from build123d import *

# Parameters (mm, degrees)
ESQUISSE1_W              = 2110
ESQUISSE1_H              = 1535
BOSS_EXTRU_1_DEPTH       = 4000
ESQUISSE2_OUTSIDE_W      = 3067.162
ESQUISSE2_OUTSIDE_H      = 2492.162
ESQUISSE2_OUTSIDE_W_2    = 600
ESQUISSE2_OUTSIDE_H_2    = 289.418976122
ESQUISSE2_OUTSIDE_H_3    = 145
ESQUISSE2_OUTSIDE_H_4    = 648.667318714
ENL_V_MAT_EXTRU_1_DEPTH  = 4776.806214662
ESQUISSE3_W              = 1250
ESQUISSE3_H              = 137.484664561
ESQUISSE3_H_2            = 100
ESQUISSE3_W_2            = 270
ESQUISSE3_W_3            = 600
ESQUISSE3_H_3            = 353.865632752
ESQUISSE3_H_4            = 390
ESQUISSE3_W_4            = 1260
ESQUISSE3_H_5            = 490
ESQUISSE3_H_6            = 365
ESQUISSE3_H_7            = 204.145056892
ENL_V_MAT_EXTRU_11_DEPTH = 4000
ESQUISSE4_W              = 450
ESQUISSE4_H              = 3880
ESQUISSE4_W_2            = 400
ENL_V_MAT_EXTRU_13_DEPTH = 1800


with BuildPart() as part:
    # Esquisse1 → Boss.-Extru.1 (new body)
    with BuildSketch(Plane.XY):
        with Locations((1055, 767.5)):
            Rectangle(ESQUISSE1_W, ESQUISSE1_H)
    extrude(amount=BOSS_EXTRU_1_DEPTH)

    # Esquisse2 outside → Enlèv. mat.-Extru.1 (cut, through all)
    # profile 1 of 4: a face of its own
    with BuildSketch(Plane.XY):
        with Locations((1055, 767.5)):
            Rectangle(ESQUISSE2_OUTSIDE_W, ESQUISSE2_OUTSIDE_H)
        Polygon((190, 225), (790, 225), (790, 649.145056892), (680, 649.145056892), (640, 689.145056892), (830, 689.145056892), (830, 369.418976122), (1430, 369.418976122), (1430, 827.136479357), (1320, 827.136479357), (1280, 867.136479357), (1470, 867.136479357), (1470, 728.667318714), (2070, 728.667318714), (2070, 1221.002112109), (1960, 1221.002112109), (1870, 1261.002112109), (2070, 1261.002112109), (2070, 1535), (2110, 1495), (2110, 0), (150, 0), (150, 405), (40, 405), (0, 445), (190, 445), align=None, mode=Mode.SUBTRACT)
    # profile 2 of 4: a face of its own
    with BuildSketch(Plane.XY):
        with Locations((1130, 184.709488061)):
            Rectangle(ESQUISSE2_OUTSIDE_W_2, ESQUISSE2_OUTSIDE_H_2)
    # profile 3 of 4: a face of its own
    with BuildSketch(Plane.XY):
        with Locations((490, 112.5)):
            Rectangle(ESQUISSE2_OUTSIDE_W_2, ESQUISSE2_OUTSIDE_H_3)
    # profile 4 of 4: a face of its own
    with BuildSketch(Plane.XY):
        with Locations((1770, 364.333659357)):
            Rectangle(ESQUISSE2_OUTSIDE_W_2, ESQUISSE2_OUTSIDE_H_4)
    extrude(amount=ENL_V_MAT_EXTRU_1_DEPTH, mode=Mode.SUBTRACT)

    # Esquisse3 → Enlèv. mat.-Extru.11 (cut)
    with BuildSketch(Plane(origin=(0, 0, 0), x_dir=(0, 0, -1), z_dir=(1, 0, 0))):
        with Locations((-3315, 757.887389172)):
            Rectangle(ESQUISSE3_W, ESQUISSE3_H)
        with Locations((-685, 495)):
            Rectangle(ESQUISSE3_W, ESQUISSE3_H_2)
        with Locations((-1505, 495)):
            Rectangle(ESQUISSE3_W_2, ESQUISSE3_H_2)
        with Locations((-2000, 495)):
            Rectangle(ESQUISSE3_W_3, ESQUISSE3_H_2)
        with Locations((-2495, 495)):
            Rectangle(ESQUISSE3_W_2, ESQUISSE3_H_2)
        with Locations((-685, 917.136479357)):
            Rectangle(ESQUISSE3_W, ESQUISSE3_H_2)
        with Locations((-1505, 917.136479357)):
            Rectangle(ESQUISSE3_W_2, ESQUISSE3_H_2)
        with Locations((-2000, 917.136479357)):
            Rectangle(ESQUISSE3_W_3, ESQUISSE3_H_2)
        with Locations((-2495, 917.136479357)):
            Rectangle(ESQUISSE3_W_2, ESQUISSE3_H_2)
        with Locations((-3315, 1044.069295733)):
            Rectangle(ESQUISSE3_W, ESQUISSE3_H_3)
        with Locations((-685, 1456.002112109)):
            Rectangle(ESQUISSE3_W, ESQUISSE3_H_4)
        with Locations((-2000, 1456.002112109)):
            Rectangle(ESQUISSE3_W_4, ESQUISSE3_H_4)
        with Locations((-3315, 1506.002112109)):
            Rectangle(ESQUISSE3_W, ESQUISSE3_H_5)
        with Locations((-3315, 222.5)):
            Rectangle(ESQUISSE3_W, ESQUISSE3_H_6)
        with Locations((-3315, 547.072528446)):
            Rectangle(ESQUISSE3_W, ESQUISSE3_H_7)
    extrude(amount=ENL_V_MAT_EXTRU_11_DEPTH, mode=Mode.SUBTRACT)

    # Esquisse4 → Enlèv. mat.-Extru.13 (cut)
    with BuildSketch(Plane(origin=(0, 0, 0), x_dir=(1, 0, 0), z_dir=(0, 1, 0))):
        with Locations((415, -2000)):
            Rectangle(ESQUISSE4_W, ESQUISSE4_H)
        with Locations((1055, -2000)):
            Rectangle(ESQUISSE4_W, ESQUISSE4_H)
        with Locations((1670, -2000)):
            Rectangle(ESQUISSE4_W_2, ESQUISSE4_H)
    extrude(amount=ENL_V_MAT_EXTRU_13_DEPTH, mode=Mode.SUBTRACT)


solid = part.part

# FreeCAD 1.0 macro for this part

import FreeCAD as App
import Part
import Sketcher

V = App.Vector
Q = App.Units.Quantity

doc = App.newDocument("Part")
params = doc.addObject("Spreadsheet::Sheet", "Params")
for row, (alias, value) in enumerate([
    ("sketch1_width", "2110 mm"),
    ("sketch1_height", "1535 mm"),
    ("pad1_length", "4000 mm"),
    ("sketch2_width", "600 mm"),
    ("sketch2_width2", "110 mm"),
    ("sketch2_width3", "190 mm"),
    ("sketch2_width4", "200 mm"),
    ("sketch2_width5", "1960 mm"),
    ("pocket1_length", "4776.806215 mm"),
    ("sketch3_width", "100 mm"),
    ("sketch3_width2", "390 mm"),
    ("sketch3_width3", "490 mm"),
    ("sketch3_width4", "365 mm"),
    ("sketch3_height", "1250 mm"),
    ("pocket2_length", "4000 mm"),
    ("sketch4_width", "450 mm"),
    ("sketch4_width2", "400 mm"),
    ("sketch4_height", "3880 mm"),
    ("pocket3_length", "1800 mm"),
], start=1):
    params.set(f"A{row}", alias)
    params.set(f"B{row}", "=" + value)
    params.setAlias(f"B{row}", alias)

body = doc.addObject("PartDesign::Body", "Body")

# Sketch on XY plane
sketch1 = body.newObject("Sketcher::SketchObject", "Sketch")
sketch1.AttachmentSupport = (doc.getObject("XY_Plane"), [""])
sketch1.MapMode = "FlatFace"
sketch1.addGeometry([
    Part.LineSegment(V(0, 1535, 0), V(0, 0, 0)),
    Part.LineSegment(V(0, 0, 0), V(2110, 0, 0)),
    Part.LineSegment(V(2110, 0, 0), V(2110, 1535, 0)),
    Part.LineSegment(V(2110, 1535, 0), V(0, 1535, 0)),
], False)
sketch1.addConstraint([
    Sketcher.Constraint("Coincident", 0, 2, 1, 1),
    Sketcher.Constraint("Coincident", 1, 2, 2, 1),
    Sketcher.Constraint("Coincident", 2, 2, 3, 1),
    Sketcher.Constraint("Coincident", 3, 2, 0, 1),
    Sketcher.Constraint("Vertical", 0),
    Sketcher.Constraint("Horizontal", 1),
    Sketcher.Constraint("Vertical", 2),
    Sketcher.Constraint("Horizontal", 3),
    Sketcher.Constraint("Coincident", 0, 2, -1, 1),
    Sketcher.Constraint("DistanceX", 1, 1, 1, 2, 2110.0),
    Sketcher.Constraint("DistanceY", 0, 2, 0, 1, 1535.0),
])
sketch1.setExpression("Constraints[9]", "Params.sketch1_width")
sketch1.setExpression("Constraints[10]", "Params.sketch1_height")
pad1 = body.newObject("PartDesign::Pad", "Pad")
pad1.Profile = sketch1
pad1.setExpression("Length", "Params.pad1_length")

# Sketch on XY plane
sketch2 = body.newObject("Sketcher::SketchObject", "Sketch001")
sketch2.AttachmentSupport = (doc.getObject("XY_Plane"), [""])
sketch2.MapMode = "FlatFace"
sketch2.addGeometry([
    Part.LineSegment(V(-479, 2014, 0), V(-479, -479, 0)),  # 0
    Part.LineSegment(V(-479, -479, 0), V(2589, -479, 0)),  # 1
    Part.LineSegment(V(2589, -479, 0), V(2589, 2014, 0)),  # 2
    Part.LineSegment(V(2589, 2014, 0), V(-479, 2014, 0)),  # 3
    Part.LineSegment(V(190, 445, 0), V(190, 225, 0)),  # 4
    Part.LineSegment(V(190, 225, 0), V(790, 225, 0)),  # 5
    Part.LineSegment(V(790, 225, 0), V(790, 649, 0)),  # 6
    Part.LineSegment(V(790, 649, 0), V(680, 649, 0)),  # 7
    Part.LineSegment(V(680, 649, 0), V(640, 689, 0)),  # 8
    Part.LineSegment(V(640, 689, 0), V(830, 689, 0)),  # 9
    Part.LineSegment(V(830, 689, 0), V(830, 369, 0)),  # 10
    Part.LineSegment(V(830, 369, 0), V(1430, 369, 0)),  # 11
    Part.LineSegment(V(1430, 369, 0), V(1430, 827, 0)),  # 12
    Part.LineSegment(V(1430, 827, 0), V(1320, 827, 0)),  # 13
    Part.LineSegment(V(1320, 827, 0), V(1280, 867, 0)),  # 14
    Part.LineSegment(V(1280, 867, 0), V(1470, 867, 0)),  # 15
    Part.LineSegment(V(1470, 867, 0), V(1470, 729, 0)),  # 16
    Part.LineSegment(V(1470, 729, 0), V(2070, 729, 0)),  # 17
    Part.LineSegment(V(2070, 729, 0), V(2070, 1221, 0)),  # 18
    Part.LineSegment(V(2070, 1221, 0), V(1960, 1221, 0)),  # 19
    Part.LineSegment(V(1960, 1221, 0), V(1870, 1261, 0)),  # 20
    Part.LineSegment(V(1870, 1261, 0), V(2070, 1261, 0)),  # 21
    Part.LineSegment(V(2070, 1261, 0), V(2070, 1535, 0)),  # 22
    Part.LineSegment(V(2070, 1535, 0), V(2110, 1495, 0)),  # 23
    Part.LineSegment(V(2110, 1495, 0), V(2110, 0, 0)),  # 24
    Part.LineSegment(V(2110, 0, 0), V(150, 0, 0)),  # 25
    Part.LineSegment(V(150, 0, 0), V(150, 405, 0)),  # 26
    Part.LineSegment(V(150, 405, 0), V(40, 405, 0)),  # 27
    Part.LineSegment(V(40, 405, 0), V(0, 445, 0)),  # 28
    Part.LineSegment(V(0, 445, 0), V(190, 445, 0)),  # 29
    Part.LineSegment(V(830, 329, 0), V(830, 40, 0)),  # 30
    Part.LineSegment(V(830, 40, 0), V(1430, 40, 0)),  # 31
    Part.LineSegment(V(1430, 40, 0), V(1430, 329, 0)),  # 32
    Part.LineSegment(V(1430, 329, 0), V(830, 329, 0)),  # 33
    Part.LineSegment(V(190, 185, 0), V(190, 40, 0)),  # 34
    Part.LineSegment(V(190, 40, 0), V(790, 40, 0)),  # 35
    Part.LineSegment(V(790, 40, 0), V(790, 185, 0)),  # 36
    Part.LineSegment(V(790, 185, 0), V(190, 185, 0)),  # 37
    Part.LineSegment(V(1470, 689, 0), V(1470, 40, 0)),  # 38
    Part.LineSegment(V(1470, 40, 0), V(2070, 40, 0)),  # 39
    Part.LineSegment(V(2070, 40, 0), V(2070, 689, 0)),  # 40
    Part.LineSegment(V(2070, 689, 0), V(1470, 689, 0)),  # 41
], False)
sketch2.addConstraint([
    Sketcher.Constraint("Coincident", 0, 2, 1, 1),
    Sketcher.Constraint("Coincident", 1, 2, 2, 1),
    Sketcher.Constraint("Coincident", 2, 2, 3, 1),
    Sketcher.Constraint("Coincident", 3, 2, 0, 1),
    Sketcher.Constraint("Coincident", 4, 2, 5, 1),
    Sketcher.Constraint("Coincident", 5, 2, 6, 1),
    Sketcher.Constraint("Coincident", 6, 2, 7, 1),
    Sketcher.Constraint("Coincident", 7, 2, 8, 1),
    Sketcher.Constraint("Coincident", 8, 2, 9, 1),
    Sketcher.Constraint("Coincident", 9, 2, 10, 1),
    Sketcher.Constraint("Coincident", 10, 2, 11, 1),
    Sketcher.Constraint("Coincident", 11, 2, 12, 1),
    Sketcher.Constraint("Coincident", 12, 2, 13, 1),
    Sketcher.Constraint("Coincident", 13, 2, 14, 1),
    Sketcher.Constraint("Coincident", 14, 2, 15, 1),
    Sketcher.Constraint("Coincident", 15, 2, 16, 1),
    Sketcher.Constraint("Coincident", 16, 2, 17, 1),
    Sketcher.Constraint("Coincident", 17, 2, 18, 1),
    Sketcher.Constraint("Coincident", 18, 2, 19, 1),
    Sketcher.Constraint("Coincident", 19, 2, 20, 1),
    Sketcher.Constraint("Coincident", 20, 2, 21, 1),
    Sketcher.Constraint("Coincident", 21, 2, 22, 1),
    Sketcher.Constraint("Coincident", 22, 2, 23, 1),
    Sketcher.Constraint("Coincident", 23, 2, 24, 1),
    Sketcher.Constraint("Coincident", 24, 2, 25, 1),
    Sketcher.Constraint("Coincident", 25, 2, 26, 1),
    Sketcher.Constraint("Coincident", 26, 2, 27, 1),
    Sketcher.Constraint("Coincident", 27, 2, 28, 1),
    Sketcher.Constraint("Coincident", 28, 2, 29, 1),
    Sketcher.Constraint("Coincident", 29, 2, 4, 1),
    Sketcher.Constraint("Coincident", 30, 2, 31, 1),
    Sketcher.Constraint("Coincident", 31, 2, 32, 1),
    Sketcher.Constraint("Coincident", 32, 2, 33, 1),
    Sketcher.Constraint("Coincident", 33, 2, 30, 1),
    Sketcher.Constraint("Coincident", 34, 2, 35, 1),
    Sketcher.Constraint("Coincident", 35, 2, 36, 1),
    Sketcher.Constraint("Coincident", 36, 2, 37, 1),
    Sketcher.Constraint("Coincident", 37, 2, 34, 1),
    Sketcher.Constraint("Coincident", 38, 2, 39, 1),
    Sketcher.Constraint("Coincident", 39, 2, 40, 1),
    Sketcher.Constraint("Coincident", 40, 2, 41, 1),
    Sketcher.Constraint("Coincident", 41, 2, 38, 1),
    Sketcher.Constraint("Vertical", 0),
    Sketcher.Constraint("Horizontal", 1),
    Sketcher.Constraint("Vertical", 2),
    Sketcher.Constraint("Horizontal", 3),
    Sketcher.Constraint("Vertical", 4),
    Sketcher.Constraint("Horizontal", 5),
    Sketcher.Constraint("Vertical", 6),
    Sketcher.Constraint("Horizontal", 7),
    Sketcher.Constraint("Horizontal", 9),
    Sketcher.Constraint("Vertical", 10),
    Sketcher.Constraint("Horizontal", 11),
    Sketcher.Constraint("Vertical", 12),
    Sketcher.Constraint("Horizontal", 13),
    Sketcher.Constraint("Horizontal", 15),
    Sketcher.Constraint("Vertical", 16),
    Sketcher.Constraint("Horizontal", 17),
    Sketcher.Constraint("Vertical", 18),
    Sketcher.Constraint("Horizontal", 19),
    Sketcher.Constraint("Horizontal", 21),
    Sketcher.Constraint("Vertical", 22),
    Sketcher.Constraint("Vertical", 24),
    Sketcher.Constraint("Horizontal", 25),
    Sketcher.Constraint("Vertical", 26),
    Sketcher.Constraint("Horizontal", 27),
    Sketcher.Constraint("Horizontal", 29),
    Sketcher.Constraint("Vertical", 30),
    Sketcher.Constraint("Horizontal", 31),
    Sketcher.Constraint("Vertical", 32),
    Sketcher.Constraint("Horizontal", 33),
    Sketcher.Constraint("Vertical", 34),
    Sketcher.Constraint("Horizontal", 35),
    Sketcher.Constraint("Vertical", 36),
    Sketcher.Constraint("Horizontal", 37),
    Sketcher.Constraint("Vertical", 38),
    Sketcher.Constraint("Horizontal", 39),
    Sketcher.Constraint("Vertical", 40),
    Sketcher.Constraint("Horizontal", 41),
    Sketcher.Constraint("PointOnObject", 24, 2, -1),
    Sketcher.Constraint("PointOnObject", 28, 2, -2),
    Sketcher.Constraint("Parallel", 8, 14),
    Sketcher.Constraint("Parallel", 14, 23),
    Sketcher.Constraint("Parallel", 23, 28),
    Sketcher.Constraint("Horizontal", 31, 2, 34, 2),
    Sketcher.Constraint("Horizontal", 35, 2, 38, 2),
    Sketcher.Constraint("Vertical", 18, 2, 21, 2),
    Sketcher.Constraint("Vertical", 10, 2, 30, 2),
    Sketcher.Constraint("Vertical", 12, 2, 31, 2),
    Sketcher.Constraint("Vertical", 29, 2, 34, 2),
    Sketcher.Constraint("Vertical", 6, 2, 35, 2),
    Sketcher.Constraint("Vertical", 16, 2, 38, 2),
    Sketcher.Constraint("Vertical", 22, 2, 39, 2),
    Sketcher.Constraint("Equal", 5, 11),
    Sketcher.Constraint("Equal", 7, 13),
    Sketcher.Constraint("Equal", 9, 15),
    Sketcher.Constraint("Equal", 11, 17),
    Sketcher.Constraint("Equal", 13, 19),
    Sketcher.Constraint("Equal", 19, 27),
    Sketcher.Constraint("Equal", 15, 29),
    Sketcher.Constraint("Equal", 8, 14),
    Sketcher.Constraint("Equal", 14, 23),
    Sketcher.Constraint("Equal", 23, 28),
    Sketcher.Constraint("DistanceX", 5, 1, 5, 2, 600.0),
    Sketcher.Constraint("DistanceX", 7, 2, 7, 1, 110.0),
    Sketcher.Constraint("DistanceX", 9, 1, 9, 2, 190.0),
    Sketcher.Constraint("DistanceX", 21, 1, 21, 2, 200.0),
    Sketcher.Constraint("DistanceX", 25, 2, 25, 1, 1960.0),
    Sketcher.Constraint("DistanceY", 4, 2, 4, 1, 220.0),
    Sketcher.Constraint("DistanceY", 24, 2, 24, 1, 1495.0),
    Sketcher.Constraint("DistanceY", 26, 1, 26, 2, 405.0),
    Sketcher.Constraint("DistanceY", 34, 2, 34, 1, 145.0),
    Sketcher.Constraint("Angle", 8, Q("135 deg")),
    Sketcher.Constraint("DistanceY", -1, 1, 30, 2, 40.0),
    Sketcher.Constraint("DistanceY", 19, 2, 20, 2, 40.0),
    Sketcher.Constraint("DistanceY", 32, 2, 11, 2, 40.0),
    Sketcher.Constraint("DistanceY", 40, 2, 17, 2, 40.0),
    Sketcher.Constraint("DistanceX", 1, 1, 1, 2, 3067.162),
    Sketcher.Constraint("DistanceY", 0, 2, 0, 1, 2492.162),
    Sketcher.Constraint("DistanceX", 0, 2, -1, 1, 478.581),
    Sketcher.Constraint("DistanceY", 0, 2, -1, 1, 478.581),
    Sketcher.Constraint("DistanceY", 10, 2, 10, 1, 319.726081),
    Sketcher.Constraint("DistanceY", 16, 2, 16, 1, 138.469161),
    Sketcher.Constraint("DistanceY", 38, 2, 38, 1, 648.667319),
    Sketcher.Constraint("DistanceY", 6, 1, 6, 2, 424.145057),
    Sketcher.Constraint("DistanceY", 18, 1, 18, 2, 492.334793),
])
sketch2.setExpression("Constraints[103]", "Params.sketch2_width")
sketch2.setExpression("Constraints[104]", "Params.sketch2_width2")
sketch2.setExpression("Constraints[105]", "Params.sketch2_width3")
sketch2.setExpression("Constraints[106]", "Params.sketch2_width4")
sketch2.setExpression("Constraints[107]", "Params.sketch2_width5")
pocket1 = body.newObject("PartDesign::Pocket", "Pocket")
pocket1.Profile = sketch2
pocket1.setExpression("Length", "Params.pocket1_length")
pocket1.Reversed = True

# Sketch on YZ plane
sketch3 = body.newObject("Sketcher::SketchObject", "Sketch002")
sketch3.AttachmentSupport = (doc.getObject("YZ_Plane"), [""])
sketch3.MapMode = "FlatFace"
sketch3.addGeometry([
    Part.LineSegment(V(827, 3940, 0), V(689, 3940, 0)),  # 0
    Part.LineSegment(V(689, 3940, 0), V(689, 2690, 0)),  # 1
    Part.LineSegment(V(689, 2690, 0), V(827, 2690, 0)),  # 2
    Part.LineSegment(V(827, 2690, 0), V(827, 3940, 0)),  # 3
    Part.LineSegment(V(545, 1310, 0), V(445, 1310, 0)),  # 4
    Part.LineSegment(V(445, 1310, 0), V(445, 60, 0)),  # 5
    Part.LineSegment(V(445, 60, 0), V(545, 60, 0)),  # 6
    Part.LineSegment(V(545, 60, 0), V(545, 1310, 0)),  # 7
    Part.LineSegment(V(545, 1640, 0), V(445, 1640, 0)),  # 8
    Part.LineSegment(V(445, 1640, 0), V(445, 1370, 0)),  # 9
    Part.LineSegment(V(445, 1370, 0), V(545, 1370, 0)),  # 10
    Part.LineSegment(V(545, 1370, 0), V(545, 1640, 0)),  # 11
    Part.LineSegment(V(545, 2300, 0), V(445, 2300, 0)),  # 12
    Part.LineSegment(V(445, 2300, 0), V(445, 1700, 0)),  # 13
    Part.LineSegment(V(445, 1700, 0), V(545, 1700, 0)),  # 14
    Part.LineSegment(V(545, 1700, 0), V(545, 2300, 0)),  # 15
    Part.LineSegment(V(545, 2630, 0), V(445, 2630, 0)),  # 16
    Part.LineSegment(V(445, 2630, 0), V(445, 2360, 0)),  # 17
    Part.LineSegment(V(445, 2360, 0), V(545, 2360, 0)),  # 18
    Part.LineSegment(V(545, 2360, 0), V(545, 2630, 0)),  # 19
    Part.LineSegment(V(967, 1310, 0), V(867, 1310, 0)),  # 20
    Part.LineSegment(V(867, 1310, 0), V(867, 60, 0)),  # 21
    Part.LineSegment(V(867, 60, 0), V(967, 60, 0)),  # 22
    Part.LineSegment(V(967, 60, 0), V(967, 1310, 0)),  # 23
    Part.LineSegment(V(967, 1640, 0), V(867, 1640, 0)),  # 24
    Part.LineSegment(V(867, 1640, 0), V(867, 1370, 0)),  # 25
    Part.LineSegment(V(867, 1370, 0), V(967, 1370, 0)),  # 26
    Part.LineSegment(V(967, 1370, 0), V(967, 1640, 0)),  # 27
    Part.LineSegment(V(967, 2300, 0), V(867, 2300, 0)),  # 28
    Part.LineSegment(V(867, 2300, 0), V(867, 1700, 0)),  # 29
    Part.LineSegment(V(867, 1700, 0), V(967, 1700, 0)),  # 30
    Part.LineSegment(V(967, 1700, 0), V(967, 2300, 0)),  # 31
    Part.LineSegment(V(967, 2630, 0), V(867, 2630, 0)),  # 32
    Part.LineSegment(V(867, 2630, 0), V(867, 2360, 0)),  # 33
    Part.LineSegment(V(867, 2360, 0), V(967, 2360, 0)),  # 34
    Part.LineSegment(V(967, 2360, 0), V(967, 2630, 0)),  # 35
    Part.LineSegment(V(1221, 3940, 0), V(867, 3940, 0)),  # 36
    Part.LineSegment(V(867, 3940, 0), V(867, 2690, 0)),  # 37
    Part.LineSegment(V(867, 2690, 0), V(1221, 2690, 0)),  # 38
    Part.LineSegment(V(1221, 2690, 0), V(1221, 3940, 0)),  # 39
    Part.LineSegment(V(1651, 1310, 0), V(1261, 1310, 0)),  # 40
    Part.LineSegment(V(1261, 1310, 0), V(1261, 60, 0)),  # 41
    Part.LineSegment(V(1261, 60, 0), V(1651, 60, 0)),  # 42
    Part.LineSegment(V(1651, 60, 0), V(1651, 1310, 0)),  # 43
    Part.LineSegment(V(1651, 2630, 0), V(1261, 2630, 0)),  # 44
    Part.LineSegment(V(1261, 2630, 0), V(1261, 1370, 0)),  # 45
    Part.LineSegment(V(1261, 1370, 0), V(1651, 1370, 0)),  # 46
    Part.LineSegment(V(1651, 1370, 0), V(1651, 2630, 0)),  # 47
    Part.LineSegment(V(1751, 3940, 0), V(1261, 3940, 0)),  # 48
    Part.LineSegment(V(1261, 3940, 0), V(1261, 2690, 0)),  # 49
    Part.LineSegment(V(1261, 2690, 0), V(1751, 2690, 0)),  # 50
    Part.LineSegment(V(1751, 2690, 0), V(1751, 3940, 0)),  # 51
    Part.LineSegment(V(405, 3940, 0), V(40, 3940, 0)),  # 52
    Part.LineSegment(V(40, 3940, 0), V(40, 2690, 0)),  # 53
    Part.LineSegment(V(40, 2690, 0), V(405, 2690, 0)),  # 54
    Part.LineSegment(V(405, 2690, 0), V(405, 3940, 0)),  # 55
    Part.LineSegment(V(649, 3940, 0), V(445, 3940, 0)),  # 56
    Part.LineSegment(V(445, 3940, 0), V(445, 2690, 0)),  # 57
    Part.LineSegment(V(445, 2690, 0), V(649, 2690, 0)),  # 58
    Part.LineSegment(V(649, 2690, 0), V(649, 3940, 0)),  # 59
], False)
sketch3.addConstraint([
    Sketcher.Constraint("Coincident", 0, 2, 1, 1),
    Sketcher.Constraint("Coincident", 1, 2, 2, 1),
    Sketcher.Constraint("Coincident", 2, 2, 3, 1),
    Sketcher.Constraint("Coincident", 3, 2, 0, 1),
    Sketcher.Constraint("Coincident", 4, 2, 5, 1),
    Sketcher.Constraint("Coincident", 5, 2, 6, 1),
    Sketcher.Constraint("Coincident", 6, 2, 7, 1),
    Sketcher.Constraint("Coincident", 7, 2, 4, 1),
    Sketcher.Constraint("Coincident", 8, 2, 9, 1),
    Sketcher.Constraint("Coincident", 9, 2, 10, 1),
    Sketcher.Constraint("Coincident", 10, 2, 11, 1),
    Sketcher.Constraint("Coincident", 11, 2, 8, 1),
    Sketcher.Constraint("Coincident", 12, 2, 13, 1),
    Sketcher.Constraint("Coincident", 13, 2, 14, 1),
    Sketcher.Constraint("Coincident", 14, 2, 15, 1),
    Sketcher.Constraint("Coincident", 15, 2, 12, 1),
    Sketcher.Constraint("Coincident", 16, 2, 17, 1),
    Sketcher.Constraint("Coincident", 17, 2, 18, 1),
    Sketcher.Constraint("Coincident", 18, 2, 19, 1),
    Sketcher.Constraint("Coincident", 19, 2, 16, 1),
    Sketcher.Constraint("Coincident", 20, 2, 21, 1),
    Sketcher.Constraint("Coincident", 21, 2, 22, 1),
    Sketcher.Constraint("Coincident", 22, 2, 23, 1),
    Sketcher.Constraint("Coincident", 23, 2, 20, 1),
    Sketcher.Constraint("Coincident", 24, 2, 25, 1),
    Sketcher.Constraint("Coincident", 25, 2, 26, 1),
    Sketcher.Constraint("Coincident", 26, 2, 27, 1),
    Sketcher.Constraint("Coincident", 27, 2, 24, 1),
    Sketcher.Constraint("Coincident", 28, 2, 29, 1),
    Sketcher.Constraint("Coincident", 29, 2, 30, 1),
    Sketcher.Constraint("Coincident", 30, 2, 31, 1),
    Sketcher.Constraint("Coincident", 31, 2, 28, 1),
    Sketcher.Constraint("Coincident", 32, 2, 33, 1),
    Sketcher.Constraint("Coincident", 33, 2, 34, 1),
    Sketcher.Constraint("Coincident", 34, 2, 35, 1),
    Sketcher.Constraint("Coincident", 35, 2, 32, 1),
    Sketcher.Constraint("Coincident", 36, 2, 37, 1),
    Sketcher.Constraint("Coincident", 37, 2, 38, 1),
    Sketcher.Constraint("Coincident", 38, 2, 39, 1),
    Sketcher.Constraint("Coincident", 39, 2, 36, 1),
    Sketcher.Constraint("Coincident", 40, 2, 41, 1),
    Sketcher.Constraint("Coincident", 41, 2, 42, 1),
    Sketcher.Constraint("Coincident", 42, 2, 43, 1),
    Sketcher.Constraint("Coincident", 43, 2, 40, 1),
    Sketcher.Constraint("Coincident", 44, 2, 45, 1),
    Sketcher.Constraint("Coincident", 45, 2, 46, 1),
    Sketcher.Constraint("Coincident", 46, 2, 47, 1),
    Sketcher.Constraint("Coincident", 47, 2, 44, 1),
    Sketcher.Constraint("Coincident", 48, 2, 49, 1),
    Sketcher.Constraint("Coincident", 49, 2, 50, 1),
    Sketcher.Constraint("Coincident", 50, 2, 51, 1),
    Sketcher.Constraint("Coincident", 51, 2, 48, 1),
    Sketcher.Constraint("Coincident", 52, 2, 53, 1),
    Sketcher.Constraint("Coincident", 53, 2, 54, 1),
    Sketcher.Constraint("Coincident", 54, 2, 55, 1),
    Sketcher.Constraint("Coincident", 55, 2, 52, 1),
    Sketcher.Constraint("Coincident", 56, 2, 57, 1),
    Sketcher.Constraint("Coincident", 57, 2, 58, 1),
    Sketcher.Constraint("Coincident", 58, 2, 59, 1),
    Sketcher.Constraint("Coincident", 59, 2, 56, 1),
    Sketcher.Constraint("Horizontal", 0),
    Sketcher.Constraint("Vertical", 1),
    Sketcher.Constraint("Horizontal", 2),
    Sketcher.Constraint("Vertical", 3),
    Sketcher.Constraint("Horizontal", 4),
    Sketcher.Constraint("Vertical", 5),
    Sketcher.Constraint("Horizontal", 6),
    Sketcher.Constraint("Vertical", 7),
    Sketcher.Constraint("Horizontal", 8),
    Sketcher.Constraint("Vertical", 9),
    Sketcher.Constraint("Horizontal", 10),
    Sketcher.Constraint("Vertical", 11),
    Sketcher.Constraint("Horizontal", 12),
    Sketcher.Constraint("Vertical", 13),
    Sketcher.Constraint("Horizontal", 14),
    Sketcher.Constraint("Vertical", 15),
    Sketcher.Constraint("Horizontal", 16),
    Sketcher.Constraint("Vertical", 17),
    Sketcher.Constraint("Horizontal", 18),
    Sketcher.Constraint("Vertical", 19),
    Sketcher.Constraint("Horizontal", 20),
    Sketcher.Constraint("Vertical", 21),
    Sketcher.Constraint("Horizontal", 22),
    Sketcher.Constraint("Vertical", 23),
    Sketcher.Constraint("Horizontal", 24),
    Sketcher.Constraint("Vertical", 25),
    Sketcher.Constraint("Horizontal", 26),
    Sketcher.Constraint("Vertical", 27),
    Sketcher.Constraint("Horizontal", 28),
    Sketcher.Constraint("Vertical", 29),
    Sketcher.Constraint("Horizontal", 30),
    Sketcher.Constraint("Vertical", 31),
    Sketcher.Constraint("Horizontal", 32),
    Sketcher.Constraint("Vertical", 33),
    Sketcher.Constraint("Horizontal", 34),
    Sketcher.Constraint("Vertical", 35),
    Sketcher.Constraint("Horizontal", 36),
    Sketcher.Constraint("Vertical", 37),
    Sketcher.Constraint("Horizontal", 38),
    Sketcher.Constraint("Vertical", 39),
    Sketcher.Constraint("Horizontal", 40),
    Sketcher.Constraint("Vertical", 41),
    Sketcher.Constraint("Horizontal", 42),
    Sketcher.Constraint("Vertical", 43),
    Sketcher.Constraint("Horizontal", 44),
    Sketcher.Constraint("Vertical", 45),
    Sketcher.Constraint("Horizontal", 46),
    Sketcher.Constraint("Vertical", 47),
    Sketcher.Constraint("Horizontal", 48),
    Sketcher.Constraint("Vertical", 49),
    Sketcher.Constraint("Horizontal", 50),
    Sketcher.Constraint("Vertical", 51),
    Sketcher.Constraint("Horizontal", 52),
    Sketcher.Constraint("Vertical", 53),
    Sketcher.Constraint("Horizontal", 54),
    Sketcher.Constraint("Vertical", 55),
    Sketcher.Constraint("Horizontal", 56),
    Sketcher.Constraint("Vertical", 57),
    Sketcher.Constraint("Horizontal", 58),
    Sketcher.Constraint("Vertical", 59),
    Sketcher.Constraint("Horizontal", 7, 2, 20, 2),
    Sketcher.Constraint("Horizontal", 6, 2, 21, 2),
    Sketcher.Constraint("Horizontal", 11, 2, 24, 2),
    Sketcher.Constraint("Horizontal", 10, 2, 25, 2),
    Sketcher.Constraint("Horizontal", 15, 2, 28, 2),
    Sketcher.Constraint("Horizontal", 14, 2, 29, 2),
    Sketcher.Constraint("Horizontal", 19, 2, 32, 2),
    Sketcher.Constraint("Horizontal", 18, 2, 33, 2),
    Sketcher.Constraint("Horizontal", 3, 2, 36, 2),
    Sketcher.Constraint("Horizontal", 2, 2, 37, 2),
    Sketcher.Constraint("Horizontal", 23, 2, 40, 2),
    Sketcher.Constraint("Horizontal", 22, 2, 41, 2),
    Sketcher.Constraint("Horizontal", 35, 2, 44, 2),
    Sketcher.Constraint("Horizontal", 26, 2, 45, 2),
    Sketcher.Constraint("Horizontal", 39, 2, 48, 2),
    Sketcher.Constraint("Horizontal", 38, 2, 49, 2),
    Sketcher.Constraint("Horizontal", 51, 2, 52, 2),
    Sketcher.Constraint("Horizontal", 50, 2, 53, 2),
    Sketcher.Constraint("Horizontal", 55, 2, 56, 2),
    Sketcher.Constraint("Horizontal", 54, 2, 57, 2),
    Sketcher.Constraint("Vertical", 5, 2, 8, 2),
    Sketcher.Constraint("Vertical", 7, 2, 10, 2),
    Sketcher.Constraint("Vertical", 9, 2, 12, 2),
    Sketcher.Constraint("Vertical", 11, 2, 14, 2),
    Sketcher.Constraint("Vertical", 13, 2, 16, 2),
    Sketcher.Constraint("Vertical", 15, 2, 18, 2),
    Sketcher.Constraint("Vertical", 21, 2, 24, 2),
    Sketcher.Constraint("Vertical", 23, 2, 26, 2),
    Sketcher.Constraint("Vertical", 25, 2, 28, 2),
    Sketcher.Constraint("Vertical", 27, 2, 30, 2),
    Sketcher.Constraint("Vertical", 29, 2, 32, 2),
    Sketcher.Constraint("Vertical", 31, 2, 34, 2),
    Sketcher.Constraint("Vertical", 33, 2, 36, 2),
    Sketcher.Constraint("Vertical", 41, 2, 44, 2),
    Sketcher.Constraint("Vertical", 43, 2, 46, 2),
    Sketcher.Constraint("Vertical", 45, 2, 48, 2),
    Sketcher.Constraint("Vertical", 17, 2, 56, 2),
    Sketcher.Constraint("Equal", 18, 20),
    Sketcher.Constraint("Equal", 3, 5),
    Sketcher.Constraint("Equal", 11, 17),
    Sketcher.Constraint("DistanceX", 4, 2, 4, 1, 100.0),
    Sketcher.Constraint("DistanceX", 40, 2, 40, 1, 390.0),
    Sketcher.Constraint("DistanceX", 48, 2, 48, 1, 490.0),
    Sketcher.Constraint("DistanceX", 52, 2, 52, 1, 365.0),
    Sketcher.Constraint("DistanceY", 1, 2, 1, 1, 1250.0),
    Sketcher.Constraint("DistanceY", 9, 2, 9, 1, 270.0),
    Sketcher.Constraint("DistanceY", 13, 2, 13, 1, 600.0),
    Sketcher.Constraint("DistanceY", 45, 2, 45, 1, 1260.0),
    Sketcher.Constraint("DistanceY", -1, 1, 0, 2, 3940.0),
    Sketcher.Constraint("DistanceX", -1, 1, 4, 2, 445.0),
    Sketcher.Constraint("DistanceY", -1, 1, 4, 2, 1310.0),
    Sketcher.Constraint("DistanceY", -1, 1, 8, 2, 1640.0),
    Sketcher.Constraint("DistanceY", -1, 1, 12, 2, 2300.0),
    Sketcher.Constraint("DistanceX", -1, 1, 52, 2, 40.0),
    Sketcher.Constraint("DistanceX", 38, 2, 44, 2, 40.0),
    Sketcher.Constraint("DistanceX", 58, 2, 1, 2, 40.0),
    Sketcher.Constraint("DistanceX", 0, 2, 0, 1, 137.484665),
    Sketcher.Constraint("DistanceX", 36, 2, 36, 1, 353.865633),
    Sketcher.Constraint("DistanceX", 56, 2, 56, 1, 204.145057),
    Sketcher.Constraint("DistanceX", -1, 1, 20, 2, 867.136479),
])
sketch3.setExpression("Constraints[160]", "Params.sketch3_width")
sketch3.setExpression("Constraints[161]", "Params.sketch3_width2")
sketch3.setExpression("Constraints[162]", "Params.sketch3_width3")
sketch3.setExpression("Constraints[163]", "Params.sketch3_width4")
sketch3.setExpression("Constraints[164]", "Params.sketch3_height")
pocket2 = body.newObject("PartDesign::Pocket", "Pocket001")
pocket2.Profile = sketch3
pocket2.setExpression("Length", "Params.pocket2_length")
pocket2.Reversed = True

# Sketch on XZ plane
sketch4 = body.newObject("Sketcher::SketchObject", "Sketch003")
sketch4.AttachmentSupport = (doc.getObject("XZ_Plane"), [""])
sketch4.MapMode = "FlatFace"
sketch4.addGeometry([
    Part.LineSegment(V(190, 60, 0), V(190, 3940, 0)),  # 0
    Part.LineSegment(V(190, 3940, 0), V(640, 3940, 0)),  # 1
    Part.LineSegment(V(640, 3940, 0), V(640, 60, 0)),  # 2
    Part.LineSegment(V(640, 60, 0), V(190, 60, 0)),  # 3
    Part.LineSegment(V(830, 60, 0), V(830, 3940, 0)),  # 4
    Part.LineSegment(V(830, 3940, 0), V(1280, 3940, 0)),  # 5
    Part.LineSegment(V(1280, 3940, 0), V(1280, 60, 0)),  # 6
    Part.LineSegment(V(1280, 60, 0), V(830, 60, 0)),  # 7
    Part.LineSegment(V(1470, 60, 0), V(1470, 3940, 0)),  # 8
    Part.LineSegment(V(1470, 3940, 0), V(1870, 3940, 0)),  # 9
    Part.LineSegment(V(1870, 3940, 0), V(1870, 60, 0)),  # 10
    Part.LineSegment(V(1870, 60, 0), V(1470, 60, 0)),  # 11
], False)
sketch4.addConstraint([
    Sketcher.Constraint("Coincident", 0, 2, 1, 1),
    Sketcher.Constraint("Coincident", 1, 2, 2, 1),
    Sketcher.Constraint("Coincident", 2, 2, 3, 1),
    Sketcher.Constraint("Coincident", 3, 2, 0, 1),
    Sketcher.Constraint("Coincident", 4, 2, 5, 1),
    Sketcher.Constraint("Coincident", 5, 2, 6, 1),
    Sketcher.Constraint("Coincident", 6, 2, 7, 1),
    Sketcher.Constraint("Coincident", 7, 2, 4, 1),
    Sketcher.Constraint("Coincident", 8, 2, 9, 1),
    Sketcher.Constraint("Coincident", 9, 2, 10, 1),
    Sketcher.Constraint("Coincident", 10, 2, 11, 1),
    Sketcher.Constraint("Coincident", 11, 2, 8, 1),
    Sketcher.Constraint("Vertical", 0),
    Sketcher.Constraint("Horizontal", 1),
    Sketcher.Constraint("Vertical", 2),
    Sketcher.Constraint("Horizontal", 3),
    Sketcher.Constraint("Vertical", 4),
    Sketcher.Constraint("Horizontal", 5),
    Sketcher.Constraint("Vertical", 6),
    Sketcher.Constraint("Horizontal", 7),
    Sketcher.Constraint("Vertical", 8),
    Sketcher.Constraint("Horizontal", 9),
    Sketcher.Constraint("Vertical", 10),
    Sketcher.Constraint("Horizontal", 11),
    Sketcher.Constraint("Horizontal", 1, 2, 4, 2),
    Sketcher.Constraint("Horizontal", 3, 2, 6, 2),
    Sketcher.Constraint("Horizontal", 5, 2, 8, 2),
    Sketcher.Constraint("Horizontal", 7, 2, 10, 2),
    Sketcher.Constraint("Equal", 3, 5),
    Sketcher.Constraint("DistanceX", 1, 1, 1, 2, 450.0),
    Sketcher.Constraint("DistanceX", 9, 1, 9, 2, 400.0),
    Sketcher.Constraint("DistanceY", 0, 1, 0, 2, 3880.0),
    Sketcher.Constraint("DistanceX", -1, 1, 0, 2, 190.0),
    Sketcher.Constraint("DistanceY", -1, 1, 0, 2, 3940.0),
    Sketcher.Constraint("DistanceX", -1, 1, 4, 2, 830.0),
    Sketcher.Constraint("DistanceX", -1, 1, 8, 2, 1470.0),
])
sketch4.setExpression("Constraints[29]", "Params.sketch4_width")
sketch4.setExpression("Constraints[30]", "Params.sketch4_width2")
sketch4.setExpression("Constraints[31]", "Params.sketch4_height")
pocket3 = body.newObject("PartDesign::Pocket", "Pocket002")
pocket3.Profile = sketch4
pocket3.setExpression("Length", "Params.pocket3_length")

doc.recompute()
